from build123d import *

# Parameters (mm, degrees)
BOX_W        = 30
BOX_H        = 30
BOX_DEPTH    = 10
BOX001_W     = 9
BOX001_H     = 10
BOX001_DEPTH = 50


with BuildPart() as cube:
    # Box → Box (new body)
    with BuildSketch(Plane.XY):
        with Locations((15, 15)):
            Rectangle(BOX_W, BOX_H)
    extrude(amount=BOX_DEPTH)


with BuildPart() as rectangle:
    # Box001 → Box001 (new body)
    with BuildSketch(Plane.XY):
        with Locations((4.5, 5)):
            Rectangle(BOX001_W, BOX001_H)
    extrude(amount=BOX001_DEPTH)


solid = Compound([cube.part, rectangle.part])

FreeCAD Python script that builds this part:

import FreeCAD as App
import Part
import Sketcher

V = App.Vector


def add_polygon(sketch, points):
    """Adds a closed chain of lines whose ends are joined by coincident constraints."""
    first, n = sketch.GeometryCount, len(points)
    for a, b in zip(points, points[1:] + points[:1]):
        sketch.addGeometry(Part.LineSegment(App.Vector(*a, 0), App.Vector(*b, 0)), False)
    for i in range(n):
        sketch.addConstraint(Sketcher.Constraint("Coincident", first + i, 2, first + (i + 1) % n, 1))

doc = App.newDocument("Part")
body = doc.addObject("PartDesign::Body", "Body")

sketch1 = body.newObject("Sketcher::SketchObject", "Sketch")
sketch1.AttachmentSupport = (doc.getObject("XY_Plane"), [""])
sketch1.MapMode = "FlatFace"
add_polygon(sketch1, [(0, 30), (0, 0), (30, 0), (30, 30)])
sketch1.addConstraint([
    Sketcher.Constraint("Vertical", 0),
    Sketcher.Constraint("Horizontal", 1),
    Sketcher.Constraint("Vertical", 2),
    Sketcher.Constraint("Horizontal", 3),
    Sketcher.Constraint("Coincident", 0, 2, -1, 1),
    Sketcher.Constraint("Equal", 3, 0),
    Sketcher.Constraint("DistanceX", 1, 1, 1, 2, 30.0),
])
pad1 = body.newObject("PartDesign::Pad", "Pad")
pad1.Profile = sketch1
pad1.Length = 10
body2 = doc.addObject("PartDesign::Body", "Body001")

sketch2 = body2.newObject("Sketcher::SketchObject", "Sketch001")
sketch2.AttachmentSupport = (doc.getObject("XY_Plane001"), [""])
sketch2.MapMode = "FlatFace"
add_polygon(sketch2, [(0, 10), (0, 0), (9, 0), (9, 10)])
sketch2.addConstraint([
    Sketcher.Constraint("Vertical", 0),
    Sketcher.Constraint("Horizontal", 1),
    Sketcher.Constraint("Vertical", 2),
    Sketcher.Constraint("Horizontal", 3),
    Sketcher.Constraint("Coincident", 0, 2, -1, 1),
    Sketcher.Constraint("DistanceX", 1, 1, 1, 2, 9.0),
    Sketcher.Constraint("DistanceY", 0, 2, 0, 1, 10.0),
])
pad2 = body2.newObject("PartDesign::Pad", "Pad001")
pad2.Profile = sketch2
pad2.Length = 50

doc.recompute()
